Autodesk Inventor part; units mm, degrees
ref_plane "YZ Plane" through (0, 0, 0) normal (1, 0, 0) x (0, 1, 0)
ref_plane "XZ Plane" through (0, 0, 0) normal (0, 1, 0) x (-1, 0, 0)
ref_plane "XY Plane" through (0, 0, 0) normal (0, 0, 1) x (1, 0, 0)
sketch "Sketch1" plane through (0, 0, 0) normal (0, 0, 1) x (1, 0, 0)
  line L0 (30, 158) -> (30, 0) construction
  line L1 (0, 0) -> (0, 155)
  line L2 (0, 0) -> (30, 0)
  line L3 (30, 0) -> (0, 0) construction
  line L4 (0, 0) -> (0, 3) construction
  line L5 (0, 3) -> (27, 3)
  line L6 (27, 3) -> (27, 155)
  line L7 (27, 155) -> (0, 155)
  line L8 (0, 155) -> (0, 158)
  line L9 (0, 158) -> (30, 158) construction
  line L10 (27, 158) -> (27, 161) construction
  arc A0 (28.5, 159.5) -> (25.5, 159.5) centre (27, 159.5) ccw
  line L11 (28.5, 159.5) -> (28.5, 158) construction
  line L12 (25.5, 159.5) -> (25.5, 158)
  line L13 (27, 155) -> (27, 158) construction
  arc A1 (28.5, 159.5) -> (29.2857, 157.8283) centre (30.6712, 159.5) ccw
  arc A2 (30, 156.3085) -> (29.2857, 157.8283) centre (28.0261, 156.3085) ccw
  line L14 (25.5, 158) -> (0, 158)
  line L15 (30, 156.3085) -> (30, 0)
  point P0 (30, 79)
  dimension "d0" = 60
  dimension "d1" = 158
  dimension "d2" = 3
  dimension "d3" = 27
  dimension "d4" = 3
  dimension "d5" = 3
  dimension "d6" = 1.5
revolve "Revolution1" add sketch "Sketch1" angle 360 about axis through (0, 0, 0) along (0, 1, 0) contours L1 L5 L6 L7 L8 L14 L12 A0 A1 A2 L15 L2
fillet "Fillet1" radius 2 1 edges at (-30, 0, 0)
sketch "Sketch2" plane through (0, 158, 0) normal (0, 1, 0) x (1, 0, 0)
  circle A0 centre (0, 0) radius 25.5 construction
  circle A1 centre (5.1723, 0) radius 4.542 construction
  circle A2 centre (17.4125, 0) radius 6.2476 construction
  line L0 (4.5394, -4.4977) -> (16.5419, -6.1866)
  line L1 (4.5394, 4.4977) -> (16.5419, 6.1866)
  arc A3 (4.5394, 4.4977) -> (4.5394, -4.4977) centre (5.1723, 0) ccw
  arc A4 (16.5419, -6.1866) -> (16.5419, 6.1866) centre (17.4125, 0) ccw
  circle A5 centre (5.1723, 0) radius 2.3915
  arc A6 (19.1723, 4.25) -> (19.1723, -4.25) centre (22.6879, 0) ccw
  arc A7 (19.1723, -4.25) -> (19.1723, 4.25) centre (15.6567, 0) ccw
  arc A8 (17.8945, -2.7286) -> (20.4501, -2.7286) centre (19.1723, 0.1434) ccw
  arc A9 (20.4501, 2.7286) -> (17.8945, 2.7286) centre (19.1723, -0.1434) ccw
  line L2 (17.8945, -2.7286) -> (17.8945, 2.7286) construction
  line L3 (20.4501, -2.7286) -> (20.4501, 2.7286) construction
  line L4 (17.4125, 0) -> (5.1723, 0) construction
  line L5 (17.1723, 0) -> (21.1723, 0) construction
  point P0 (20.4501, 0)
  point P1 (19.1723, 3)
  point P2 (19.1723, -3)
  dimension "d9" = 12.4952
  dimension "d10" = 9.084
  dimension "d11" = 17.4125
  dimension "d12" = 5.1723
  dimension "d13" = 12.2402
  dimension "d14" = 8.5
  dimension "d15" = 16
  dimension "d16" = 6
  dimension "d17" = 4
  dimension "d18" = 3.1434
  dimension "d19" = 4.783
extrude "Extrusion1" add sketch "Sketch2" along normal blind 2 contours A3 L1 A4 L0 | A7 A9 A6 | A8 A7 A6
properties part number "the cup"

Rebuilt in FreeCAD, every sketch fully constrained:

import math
import FreeCAD as App
import Part
import Sketcher


def edges_at(feature, points):
    """Names of the edges that pass closest to the given points."""
    edges = feature.Shape.Edges
    near = lambda p: min(range(len(edges)), key=lambda i: edges[i].distToShape(Part.Vertex(*p))[0])
    return sorted({f"Edge{near(p) + 1}" for p in points})

doc = App.newDocument("Part")
params = doc.addObject("Spreadsheet::Sheet", "Params")
for row, (alias, value) in enumerate([
    ("sketch1_radius", "1.5 mm"),
    ("sketch1_width", "27 mm"),
    ("sketch1_height", "3 mm"),
    ("sketch1_height2", "1.5 mm"),
    ("revolution_angle", "360 deg"),
    ("fillet_radius", "2 mm"),
    ("pad1_length", "2 mm"),
], start=1):
    params.set(f"A{row}", alias)
    params.set(f"B{row}", "=" + value)
    params.setAlias(f"B{row}", alias)

body = doc.addObject("PartDesign::Body", "Body")

sketch1 = body.newObject("Sketcher::SketchObject", "Sketch")
sketch1.AttachmentSupport = (doc.getObject("XY_Plane"), [""])
sketch1.MapMode = "FlatFace"
sketch1.addGeometry([
    Part.LineSegment(App.Vector(0, 3, 0), App.Vector(0, 0, 0)),
    Part.LineSegment(App.Vector(0, 0, 0), App.Vector(30, 0, 0)),
    Part.LineSegment(App.Vector(30, 0, 0), App.Vector(30, 156.3, 0)),
    Part.ArcOfCircle(Part.Circle(App.Vector(28, 156.3, 0), App.Vector(0, 0, 1), 2), math.radians(0), math.radians(50)),
    Part.ArcOfCircle(Part.Circle(App.Vector(30.7, 159.5, 0), App.Vector(0, 0, 1), 2.2), math.radians(180), math.radians(230)),
    Part.ArcOfCircle(Part.Circle(App.Vector(27, 159.5, 0), App.Vector(0, 0, 1), 1.5), math.radians(0), math.radians(180)),
    Part.LineSegment(App.Vector(25.5, 159.5, 0), App.Vector(25.5, 158, 0)),
    Part.LineSegment(App.Vector(25.5, 158, 0), App.Vector(0, 158, 0)),
    Part.LineSegment(App.Vector(0, 158, 0), App.Vector(0, 155, 0)),
    Part.LineSegment(App.Vector(0, 155, 0), App.Vector(27, 155, 0)),
    Part.LineSegment(App.Vector(27, 155, 0), App.Vector(27, 3, 0)),
    Part.LineSegment(App.Vector(27, 3, 0), App.Vector(0, 3, 0)),
], False)
sketch1.addConstraint([
    Sketcher.Constraint("Coincident", 0, 2, 1, 1),
    Sketcher.Constraint("Coincident", 1, 2, 2, 1),
    Sketcher.Constraint("Tangent", 2, 2, 3, 1),
    Sketcher.Constraint("Tangent", 3, 2, 4, 2),
    Sketcher.Constraint("Tangent", 4, 1, 5, 1),
    Sketcher.Constraint("Tangent", 5, 2, 6, 1),
    Sketcher.Constraint("Coincident", 6, 2, 7, 1),
    Sketcher.Constraint("Coincident", 7, 2, 8, 1),
    Sketcher.Constraint("Coincident", 8, 2, 9, 1),
    Sketcher.Constraint("Coincident", 9, 2, 10, 1),
    Sketcher.Constraint("Coincident", 10, 2, 11, 1),
    Sketcher.Constraint("Coincident", 11, 2, 0, 1),
    Sketcher.Constraint("Vertical", 0),
    Sketcher.Constraint("Horizontal", 1),
    Sketcher.Constraint("Vertical", 2),
    Sketcher.Constraint("Vertical", 6),
    Sketcher.Constraint("Horizontal", 7),
    Sketcher.Constraint("Vertical", 8),
    Sketcher.Constraint("Horizontal", 9),
    Sketcher.Constraint("Vertical", 10),
    Sketcher.Constraint("Horizontal", 11),
    Sketcher.Constraint("Coincident", 0, 2, -1, 1),
    Sketcher.Constraint("PointOnObject", 7, 2, -2),
    Sketcher.Constraint("Horizontal", 4, 3, 5, 3),
    Sketcher.Constraint("Vertical", 5, 3, 9, 2),
    Sketcher.Constraint("Equal", 0, 8),
    Sketcher.Constraint("Radius", 5, 1.5),
    Sketcher.Constraint("DistanceX", 9, 1, 9, 2, 27.0),
    Sketcher.Constraint("DistanceY", 0, 2, 0, 1, 3.0),
    Sketcher.Constraint("DistanceY", 6, 2, 6, 1, 1.5),
    Sketcher.Constraint("DistanceY", -1, 1, 6, 2, 158.0),
    Sketcher.Constraint("DistanceX", 5, 3, 1, 2, 3.0),
    Sketcher.Constraint("Radius", 3, 1.974),
    Sketcher.Constraint("Radius", 4, 2.1712),
])
sketch1.setExpression("Constraints[26]", "Params.sketch1_radius")
sketch1.setExpression("Constraints[27]", "Params.sketch1_width")
sketch1.setExpression("Constraints[28]", "Params.sketch1_height")
sketch1.setExpression("Constraints[29]", "Params.sketch1_height2")
revolution = body.newObject("PartDesign::Revolution", "Revolution")
revolution.Profile = sketch1
revolution.ReferenceAxis = (sketch1, ["V_Axis"])
revolution.setExpression("Angle", "Params.revolution_angle")
doc.recompute()

fillet = body.newObject("PartDesign::Fillet", "Fillet")
fillet.Base = (revolution, edges_at(revolution, [(-30, 0, 0)]))
fillet.setExpression("Radius", "Params.fillet_radius")

sketch2 = body.newObject("Sketcher::SketchObject", "Sketch001")
sketch2.AttachmentSupport = (doc.getObject("XZ_Plane"), [""])
sketch2.MapMode = "FlatFace"
sketch2.AttachmentOffset = App.Placement(App.Vector(0, 0, -158), App.Rotation())
sketch2.addGeometry([
    Part.ArcOfCircle(Part.Circle(App.Vector(5.2, 0, 0), App.Vector(0, 0, 1), 4.5), math.radians(98), math.radians(262)),
    Part.LineSegment(App.Vector(4.5, 4.5, 0), App.Vector(16.5, 6.2, 0)),
    Part.ArcOfCircle(Part.Circle(App.Vector(17.4, 0, 0), App.Vector(0, 0, 1), 6.2), math.radians(-98), math.radians(98)),
    Part.LineSegment(App.Vector(16.5, -6.2, 0), App.Vector(4.5, -4.5, 0)),
    Part.Circle(App.Vector(5.2, 0, 0), App.Vector(0, 0, 1), 2.4),
    Part.ArcOfCircle(Part.Circle(App.Vector(22.7, 0, 0), App.Vector(0, 0, 1), 5.5), math.radians(150), math.radians(210)),
    Part.ArcOfCircle(Part.Circle(App.Vector(19.2, 0.1, 0), App.Vector(0, 0, 1), 3.1), math.radians(-114), math.radians(-66)),
    Part.ArcOfCircle(Part.Circle(App.Vector(15.7, 0, 0), App.Vector(0, 0, 1), 5.5), math.radians(-30), math.radians(30)),
    Part.ArcOfCircle(Part.Circle(App.Vector(19.2, -0.1, 0), App.Vector(0, 0, 1), 3.1), math.radians(66), math.radians(114)),
], False)
sketch2.addConstraint([
    Sketcher.Constraint("Tangent", 0, 1, 1, 1),
    Sketcher.Constraint("Tangent", 1, 2, 2, 2),
    Sketcher.Constraint("Tangent", 2, 1, 3, 1),
    Sketcher.Constraint("Tangent", 3, 2, 0, 2),
    Sketcher.Constraint("Coincident", 5, 2, 6, 1),
    Sketcher.Constraint("Coincident", 6, 2, 7, 1),
    Sketcher.Constraint("Coincident", 7, 2, 8, 1),
    Sketcher.Constraint("Coincident", 8, 2, 5, 1),
    Sketcher.Constraint("Coincident", 4, 3, 0, 3),
    Sketcher.Constraint("Equal", 5, 7),
    Sketcher.Constraint("Equal", 6, 8),
    Sketcher.Constraint("Symmetric", 6, 3, 8, 3, -1),
    Sketcher.Constraint("Symmetric", 1, 2, 2, 1, -1),
    Sketcher.Constraint("PointOnObject", 5, 3, -1),
    Sketcher.Constraint("PointOnObject", 7, 3, -1),
    Sketcher.Constraint("Horizontal", 5, 2, 6, 2),
    Sketcher.Constraint("Diameter", 4, 4.783),
    Sketcher.Constraint("Radius", 0, 4.542),
    Sketcher.Constraint("Radius", 2, 6.2476),
    Sketcher.Constraint("Radius", 6, 3.1434),
    Sketcher.Constraint("DistanceX", 0, 3, 6, 3, 14.0),
    Sketcher.Constraint("DistanceX", -1, 1, 0, 3, 5.1723),
    Sketcher.Constraint("DistanceX", -1, 1, 2, 3, 17.4125),
    Sketcher.Constraint("Radius", 5, 5.5156),
    Sketcher.Constraint("DistanceX", -1, 1, 6, 2, 20.45),
    Sketcher.Constraint("DistanceY", 8, 3, 1, 2, 6.33),
])
pad1 = body.newObject("PartDesign::Pad", "Pad")
pad1.Profile = sketch2
pad1.setExpression("Length", "Params.pad1_length")
pad1.Reversed = True

doc.recompute()
